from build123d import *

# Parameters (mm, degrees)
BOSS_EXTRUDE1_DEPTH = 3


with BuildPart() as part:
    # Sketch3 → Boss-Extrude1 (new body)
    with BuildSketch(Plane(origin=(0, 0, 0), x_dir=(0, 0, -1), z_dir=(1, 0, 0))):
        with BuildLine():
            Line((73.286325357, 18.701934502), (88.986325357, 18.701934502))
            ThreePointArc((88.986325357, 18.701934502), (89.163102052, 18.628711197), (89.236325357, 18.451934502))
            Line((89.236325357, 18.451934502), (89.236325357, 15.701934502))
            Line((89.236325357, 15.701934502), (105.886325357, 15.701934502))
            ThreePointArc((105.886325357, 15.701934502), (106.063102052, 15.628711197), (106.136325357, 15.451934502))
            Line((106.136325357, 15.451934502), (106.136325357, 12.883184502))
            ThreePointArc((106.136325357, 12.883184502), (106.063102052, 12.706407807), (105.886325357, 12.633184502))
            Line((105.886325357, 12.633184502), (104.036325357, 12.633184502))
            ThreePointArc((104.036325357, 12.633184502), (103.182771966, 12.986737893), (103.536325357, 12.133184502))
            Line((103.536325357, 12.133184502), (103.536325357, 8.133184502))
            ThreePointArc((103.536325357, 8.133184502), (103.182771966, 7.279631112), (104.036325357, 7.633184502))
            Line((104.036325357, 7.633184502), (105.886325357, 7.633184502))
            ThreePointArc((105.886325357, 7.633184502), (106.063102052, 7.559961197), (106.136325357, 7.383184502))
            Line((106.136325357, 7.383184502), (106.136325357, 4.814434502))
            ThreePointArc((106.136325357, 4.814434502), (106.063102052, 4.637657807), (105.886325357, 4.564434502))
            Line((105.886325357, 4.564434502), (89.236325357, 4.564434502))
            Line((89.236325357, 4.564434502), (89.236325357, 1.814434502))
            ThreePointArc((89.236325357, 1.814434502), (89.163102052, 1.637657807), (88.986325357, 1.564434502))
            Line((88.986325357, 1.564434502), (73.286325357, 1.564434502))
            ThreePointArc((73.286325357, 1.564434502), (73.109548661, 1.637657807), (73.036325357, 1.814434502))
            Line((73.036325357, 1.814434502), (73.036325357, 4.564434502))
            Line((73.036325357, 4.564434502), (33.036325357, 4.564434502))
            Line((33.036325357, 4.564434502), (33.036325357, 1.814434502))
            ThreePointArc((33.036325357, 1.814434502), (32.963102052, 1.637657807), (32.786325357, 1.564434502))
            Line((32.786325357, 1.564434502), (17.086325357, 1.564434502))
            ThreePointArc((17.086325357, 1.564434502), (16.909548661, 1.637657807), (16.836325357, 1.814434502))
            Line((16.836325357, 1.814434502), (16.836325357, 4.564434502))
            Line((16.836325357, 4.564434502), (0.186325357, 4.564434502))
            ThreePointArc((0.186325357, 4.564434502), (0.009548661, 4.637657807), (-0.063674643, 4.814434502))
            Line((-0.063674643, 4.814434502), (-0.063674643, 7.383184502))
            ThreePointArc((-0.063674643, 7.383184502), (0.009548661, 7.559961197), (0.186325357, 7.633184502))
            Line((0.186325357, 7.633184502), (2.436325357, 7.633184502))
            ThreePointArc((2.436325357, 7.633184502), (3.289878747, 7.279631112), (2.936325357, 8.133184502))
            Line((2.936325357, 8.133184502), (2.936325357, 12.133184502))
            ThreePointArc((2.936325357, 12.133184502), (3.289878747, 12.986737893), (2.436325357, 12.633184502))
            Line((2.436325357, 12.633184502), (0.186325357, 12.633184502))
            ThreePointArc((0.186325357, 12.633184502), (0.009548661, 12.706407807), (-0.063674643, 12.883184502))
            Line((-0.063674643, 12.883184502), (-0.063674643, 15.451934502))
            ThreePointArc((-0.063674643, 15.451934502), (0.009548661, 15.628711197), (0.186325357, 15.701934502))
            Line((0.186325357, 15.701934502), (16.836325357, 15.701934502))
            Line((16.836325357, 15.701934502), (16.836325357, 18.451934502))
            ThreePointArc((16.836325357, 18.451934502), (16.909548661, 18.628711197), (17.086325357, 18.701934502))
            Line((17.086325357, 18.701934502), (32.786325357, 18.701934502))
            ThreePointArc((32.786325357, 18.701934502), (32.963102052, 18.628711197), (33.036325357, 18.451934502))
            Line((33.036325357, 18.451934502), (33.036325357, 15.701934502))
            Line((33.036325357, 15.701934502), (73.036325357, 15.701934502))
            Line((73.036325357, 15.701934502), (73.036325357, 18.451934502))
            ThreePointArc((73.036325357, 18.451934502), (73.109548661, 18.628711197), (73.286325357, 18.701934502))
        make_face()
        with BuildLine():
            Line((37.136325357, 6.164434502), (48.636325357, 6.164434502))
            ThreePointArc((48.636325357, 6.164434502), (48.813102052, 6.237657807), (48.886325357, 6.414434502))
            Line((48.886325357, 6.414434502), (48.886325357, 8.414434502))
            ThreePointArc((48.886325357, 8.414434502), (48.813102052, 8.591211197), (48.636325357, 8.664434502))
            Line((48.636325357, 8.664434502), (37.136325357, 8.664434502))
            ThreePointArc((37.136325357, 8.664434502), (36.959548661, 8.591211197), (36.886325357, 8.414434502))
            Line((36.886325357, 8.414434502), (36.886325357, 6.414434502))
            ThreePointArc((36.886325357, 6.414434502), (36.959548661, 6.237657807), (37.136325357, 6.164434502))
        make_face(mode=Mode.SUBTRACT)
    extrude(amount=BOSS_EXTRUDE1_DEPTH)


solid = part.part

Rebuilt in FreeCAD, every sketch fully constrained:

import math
import FreeCAD as App
import Part
import Sketcher
Q = App.Units.Quantity

doc = App.newDocument("Part")
body = doc.addObject("PartDesign::Body", "Body")

# Sketch on YZ plane
sketch1 = doc.addObject("Sketcher::SketchObject", "Sketch")
body.addObject(sketch1)
sketch1.AttachmentSupport = (doc.YZ_Plane, [""])
sketch1.MapMode = "FlatFace"
sketch1.addGeometry([
    Part.LineSegment(App.Vector(18.7, -88.99, 0), App.Vector(18.7, -73.29, 0)),  # 0
    Part.ArcOfCircle(Part.Circle(App.Vector(18.45, -73.29, 0), App.Vector(0, 0, 1), 0.25), math.radians(0), math.radians(90)),  # 1
    Part.LineSegment(App.Vector(18.45, -73.04, 0), App.Vector(15.7, -73.04, 0)),  # 2
    Part.LineSegment(App.Vector(15.7, -73.04, 0), App.Vector(15.7, -33.04, 0)),  # 3
    Part.LineSegment(App.Vector(15.7, -33.04, 0), App.Vector(18.45, -33.04, 0)),  # 4
    Part.ArcOfCircle(Part.Circle(App.Vector(18.45, -32.79, 0), App.Vector(0, 0, 1), 0.25), math.radians(-90), math.radians(0)),  # 5
    Part.LineSegment(App.Vector(18.7, -32.79, 0), App.Vector(18.7, -17.09, 0)),  # 6
    Part.ArcOfCircle(Part.Circle(App.Vector(18.45, -17.09, 0), App.Vector(0, 0, 1), 0.25), math.radians(0), math.radians(90)),  # 7
    Part.LineSegment(App.Vector(18.45, -16.84, 0), App.Vector(15.7, -16.84, 0)),  # 8
    Part.LineSegment(App.Vector(15.7, -16.84, 0), App.Vector(15.7, -0.19, 0)),  # 9
    Part.ArcOfCircle(Part.Circle(App.Vector(15.45, -0.19, 0), App.Vector(0, 0, 1), 0.25), math.radians(0), math.radians(90)),  # 10
    Part.LineSegment(App.Vector(15.45, 0.06, 0), App.Vector(12.88, 0.06, 0)),  # 11
    Part.ArcOfCircle(Part.Circle(App.Vector(12.88, -0.19, 0), App.Vector(0, 0, 1), 0.25), math.radians(90), math.radians(180)),  # 12
    Part.LineSegment(App.Vector(12.63, -0.19, 0), App.Vector(12.63, -2.44, 0)),  # 13
    Part.ArcOfCircle(Part.Circle(App.Vector(12.63, -2.94, 0), App.Vector(0, 0, 1), 0.5), math.radians(180), math.radians(450)),  # 14
    Part.LineSegment(App.Vector(12.13, -2.94, 0), App.Vector(8.13, -2.94, 0)),  # 15
    Part.ArcOfCircle(Part.Circle(App.Vector(7.63, -2.94, 0), App.Vector(0, 0, 1), 0.5), math.radians(90), math.radians(360)),  # 16
    Part.LineSegment(App.Vector(7.63, -2.44, 0), App.Vector(7.63, -0.19, 0)),  # 17
    Part.ArcOfCircle(Part.Circle(App.Vector(7.38, -0.19, 0), App.Vector(0, 0, 1), 0.25), math.radians(0), math.radians(90)),  # 18
    Part.LineSegment(App.Vector(7.38, 0.06, 0), App.Vector(4.81, 0.06, 0)),  # 19
    Part.ArcOfCircle(Part.Circle(App.Vector(4.81, -0.19, 0), App.Vector(0, 0, 1), 0.25), math.radians(90), math.radians(180)),  # 20
    Part.LineSegment(App.Vector(4.56, -0.19, 0), App.Vector(4.56, -16.84, 0)),  # 21
    Part.LineSegment(App.Vector(4.56, -16.84, 0), App.Vector(1.81, -16.84, 0)),  # 22
    Part.ArcOfCircle(Part.Circle(App.Vector(1.81, -17.09, 0), App.Vector(0, 0, 1), 0.25), math.radians(90), math.radians(180)),  # 23
    Part.LineSegment(App.Vector(1.56, -17.09, 0), App.Vector(1.56, -32.79, 0)),  # 24
    Part.ArcOfCircle(Part.Circle(App.Vector(1.81, -32.79, 0), App.Vector(0, 0, 1), 0.25), math.radians(-180), math.radians(-90)),  # 25
    Part.LineSegment(App.Vector(1.81, -33.04, 0), App.Vector(4.56, -33.04, 0)),  # 26
    Part.LineSegment(App.Vector(4.56, -33.04, 0), App.Vector(4.56, -73.04, 0)),  # 27
    Part.LineSegment(App.Vector(4.56, -73.04, 0), App.Vector(1.81, -73.04, 0)),  # 28
    Part.ArcOfCircle(Part.Circle(App.Vector(1.81, -73.29, 0), App.Vector(0, 0, 1), 0.25), math.radians(90), math.radians(180)),  # 29
    Part.LineSegment(App.Vector(1.56, -73.29, 0), App.Vector(1.56, -88.99, 0)),  # 30
    Part.ArcOfCircle(Part.Circle(App.Vector(1.81, -88.99, 0), App.Vector(0, 0, 1), 0.25), math.radians(-180), math.radians(-90)),  # 31
    Part.LineSegment(App.Vector(1.81, -89.24, 0), App.Vector(4.56, -89.24, 0)),  # 32
    Part.LineSegment(App.Vector(4.56, -89.24, 0), App.Vector(4.56, -105.89, 0)),  # 33
    Part.ArcOfCircle(Part.Circle(App.Vector(4.81, -105.89, 0), App.Vector(0, 0, 1), 0.25), math.radians(-180), math.radians(-90)),  # 34
    Part.LineSegment(App.Vector(4.81, -106.14, 0), App.Vector(7.38, -106.14, 0)),  # 35
    Part.ArcOfCircle(Part.Circle(App.Vector(7.38, -105.89, 0), App.Vector(0, 0, 1), 0.25), math.radians(-90), math.radians(0)),  # 36
    Part.LineSegment(App.Vector(7.63, -105.89, 0), App.Vector(7.63, -104.04, 0)),  # 37
    Part.ArcOfCircle(Part.Circle(App.Vector(7.63, -103.54, 0), App.Vector(0, 0, 1), 0.5), math.radians(0), math.radians(270)),  # 38
    Part.LineSegment(App.Vector(8.13, -103.54, 0), App.Vector(12.13, -103.54, 0)),  # 39
    Part.ArcOfCircle(Part.Circle(App.Vector(12.63, -103.54, 0), App.Vector(0, 0, 1), 0.5), math.radians(-90), math.radians(180)),  # 40
    Part.LineSegment(App.Vector(12.63, -104.04, 0), App.Vector(12.63, -105.89, 0)),  # 41
    Part.ArcOfCircle(Part.Circle(App.Vector(12.88, -105.89, 0), App.Vector(0, 0, 1), 0.25), math.radians(-180), math.radians(-90)),  # 42
    Part.LineSegment(App.Vector(12.88, -106.14, 0), App.Vector(15.45, -106.14, 0)),  # 43
    Part.ArcOfCircle(Part.Circle(App.Vector(15.45, -105.89, 0), App.Vector(0, 0, 1), 0.25), math.radians(-90), math.radians(0)),  # 44
    Part.LineSegment(App.Vector(15.7, -105.89, 0), App.Vector(15.7, -89.24, 0)),  # 45
    Part.LineSegment(App.Vector(15.7, -89.24, 0), App.Vector(18.45, -89.24, 0)),  # 46
    Part.ArcOfCircle(Part.Circle(App.Vector(18.45, -88.99, 0), App.Vector(0, 0, 1), 0.25), math.radians(-90), math.radians(0)),  # 47
    Part.ArcOfCircle(Part.Circle(App.Vector(6.41, -37.14, 0), App.Vector(0, 0, 1), 0.25), math.radians(90), math.radians(180)),  # 48
    Part.LineSegment(App.Vector(6.41, -36.89, 0), App.Vector(8.41, -36.89, 0)),  # 49
    Part.ArcOfCircle(Part.Circle(App.Vector(8.41, -37.14, 0), App.Vector(0, 0, 1), 0.25), math.radians(0), math.radians(90)),  # 50
    Part.LineSegment(App.Vector(8.66, -37.14, 0), App.Vector(8.66, -48.64, 0)),  # 51
    Part.ArcOfCircle(Part.Circle(App.Vector(8.41, -48.64, 0), App.Vector(0, 0, 1), 0.25), math.radians(-90), math.radians(0)),  # 52
    Part.LineSegment(App.Vector(8.41, -48.89, 0), App.Vector(6.41, -48.89, 0)),  # 53
    Part.ArcOfCircle(Part.Circle(App.Vector(6.41, -48.64, 0), App.Vector(0, 0, 1), 0.25), math.radians(-180), math.radians(-90)),  # 54
    Part.LineSegment(App.Vector(6.16, -48.64, 0), App.Vector(6.16, -37.14, 0)),  # 55
], False)
sketch1.addConstraint([
    Sketcher.Constraint("Tangent", 0, 2, 1, 1),
    Sketcher.Constraint("Tangent", 1, 2, 2, 1),
    Sketcher.Constraint("Coincident", 2, 2, 3, 1),
    Sketcher.Constraint("Coincident", 3, 2, 4, 1),
    Sketcher.Constraint("Tangent", 4, 2, 5, 1),
    Sketcher.Constraint("Tangent", 5, 2, 6, 1),
    Sketcher.Constraint("Tangent", 6, 2, 7, 1),
    Sketcher.Constraint("Tangent", 7, 2, 8, 1),
    Sketcher.Constraint("Coincident", 8, 2, 9, 1),
    Sketcher.Constraint("Tangent", 9, 2, 10, 1),
    Sketcher.Constraint("Tangent", 10, 2, 11, 1),
    Sketcher.Constraint("Tangent", 11, 2, 12, 1),
    Sketcher.Constraint("Tangent", 12, 2, 13, 1),
    Sketcher.Constraint("Coincident", 13, 2, 14, 2),
    Sketcher.Constraint("Coincident", 14, 1, 15, 1),
    Sketcher.Constraint("Coincident", 15, 2, 16, 2),
    Sketcher.Constraint("Coincident", 16, 1, 17, 1),
    Sketcher.Constraint("Tangent", 17, 2, 18, 1),
    Sketcher.Constraint("Tangent", 18, 2, 19, 1),
    Sketcher.Constraint("Tangent", 19, 2, 20, 1),
    Sketcher.Constraint("Tangent", 20, 2, 21, 1),
    Sketcher.Constraint("Coincident", 21, 2, 22, 1),
    Sketcher.Constraint("Tangent", 22, 2, 23, 1),
    Sketcher.Constraint("Tangent", 23, 2, 24, 1),
    Sketcher.Constraint("Tangent", 24, 2, 25, 1),
    Sketcher.Constraint("Tangent", 25, 2, 26, 1),
    Sketcher.Constraint("Coincident", 26, 2, 27, 1),
    Sketcher.Constraint("Coincident", 27, 2, 28, 1),
    Sketcher.Constraint("Tangent", 28, 2, 29, 1),
    Sketcher.Constraint("Tangent", 29, 2, 30, 1),
    Sketcher.Constraint("Tangent", 30, 2, 31, 1),
    Sketcher.Constraint("Tangent", 31, 2, 32, 1),
    Sketcher.Constraint("Coincident", 32, 2, 33, 1),
    Sketcher.Constraint("Tangent", 33, 2, 34, 1),
    Sketcher.Constraint("Tangent", 34, 2, 35, 1),
    Sketcher.Constraint("Tangent", 35, 2, 36, 1),
    Sketcher.Constraint("Tangent", 36, 2, 37, 1),
    Sketcher.Constraint("Coincident", 37, 2, 38, 2),
    Sketcher.Constraint("Coincident", 38, 1, 39, 1),
    Sketcher.Constraint("Coincident", 39, 2, 40, 2),
    Sketcher.Constraint("Coincident", 40, 1, 41, 1),
    Sketcher.Constraint("Tangent", 41, 2, 42, 1),
    Sketcher.Constraint("Tangent", 42, 2, 43, 1),
    Sketcher.Constraint("Tangent", 43, 2, 44, 1),
    Sketcher.Constraint("Tangent", 44, 2, 45, 1),
    Sketcher.Constraint("Coincident", 45, 2, 46, 1),
    Sketcher.Constraint("Tangent", 46, 2, 47, 1),
    Sketcher.Constraint("Tangent", 47, 2, 0, 1),
    Sketcher.Constraint("Tangent", 48, 1, 49, 1),
    Sketcher.Constraint("Tangent", 49, 2, 50, 2),
    Sketcher.Constraint("Tangent", 50, 1, 51, 1),
    Sketcher.Constraint("Tangent", 51, 2, 52, 2),
    Sketcher.Constraint("Tangent", 52, 1, 53, 1),
    Sketcher.Constraint("Tangent", 53, 2, 54, 2),
    Sketcher.Constraint("Tangent", 54, 1, 55, 1),
    Sketcher.Constraint("Tangent", 55, 2, 48, 2),
    Sketcher.Constraint("Vertical", 0),
    Sketcher.Constraint("Horizontal", 2),
    Sketcher.Constraint("Vertical", 3),
    Sketcher.Constraint("Horizontal", 4),
    Sketcher.Constraint("Vertical", 6),
    Sketcher.Constraint("Horizontal", 8),
    Sketcher.Constraint("Vertical", 9),
    Sketcher.Constraint("Horizontal", 11),
    Sketcher.Constraint("Vertical", 13),
    Sketcher.Constraint("Horizontal", 15),
    Sketcher.Constraint("Vertical", 17),
    Sketcher.Constraint("Horizontal", 19),
    Sketcher.Constraint("Vertical", 21),
    Sketcher.Constraint("Horizontal", 22),
    Sketcher.Constraint("Vertical", 24),
    Sketcher.Constraint("Horizontal", 26),
    Sketcher.Constraint("Vertical", 27),
    Sketcher.Constraint("Horizontal", 28),
    Sketcher.Constraint("Vertical", 30),
    Sketcher.Constraint("Horizontal", 32),
    Sketcher.Constraint("Vertical", 33),
    Sketcher.Constraint("Horizontal", 35),
    Sketcher.Constraint("Vertical", 37),
    Sketcher.Constraint("Horizontal", 39),
    Sketcher.Constraint("Vertical", 41),
    Sketcher.Constraint("Horizontal", 43),
    Sketcher.Constraint("Vertical", 45),
    Sketcher.Constraint("Horizontal", 46),
    Sketcher.Constraint("Horizontal", 49),
    Sketcher.Constraint("Vertical", 51),
    Sketcher.Constraint("Horizontal", 53),
    Sketcher.Constraint("Vertical", 55),
    Sketcher.Constraint("Equal", 1, 5),
    Sketcher.Constraint("Equal", 5, 7),
    Sketcher.Constraint("Equal", 7, 10),
    Sketcher.Constraint("Equal", 10, 12),
    Sketcher.Constraint("Equal", 14, 16),
    Sketcher.Constraint("Equal", 12, 18),
    Sketcher.Constraint("Equal", 18, 20),
    Sketcher.Constraint("Equal", 20, 23),
    Sketcher.Constraint("Equal", 23, 25),
    Sketcher.Constraint("Equal", 25, 29),
    Sketcher.Constraint("Equal", 29, 31),
    Sketcher.Constraint("Equal", 31, 34),
    Sketcher.Constraint("Equal", 34, 36),
    Sketcher.Constraint("Equal", 16, 38),
    Sketcher.Constraint("Equal", 38, 40),
    Sketcher.Constraint("Equal", 36, 42),
    Sketcher.Constraint("Equal", 42, 44),
    Sketcher.Constraint("Equal", 44, 47),
    Sketcher.Constraint("Equal", 47, 48),
    Sketcher.Constraint("Equal", 48, 50),
    Sketcher.Constraint("Equal", 50, 52),
    Sketcher.Constraint("Equal", 52, 54),
    Sketcher.Constraint("Horizontal", 14, 3, 16, 3),
    Sketcher.Constraint("Horizontal", 12, 3, 18, 3),
    Sketcher.Constraint("Horizontal", 7, 3, 23, 3),
    Sketcher.Constraint("Horizontal", 5, 3, 25, 3),
    Sketcher.Constraint("Horizontal", 1, 3, 29, 3),
    Sketcher.Constraint("Horizontal", 38, 3, 40, 3),
    Sketcher.Constraint("Horizontal", 36, 3, 42, 3),
    Sketcher.Constraint("Horizontal", 31, 3, 47, 3),
    Sketcher.Constraint("Horizontal", 16, 3, 14, 1),
    Sketcher.Constraint("Horizontal", 40, 3, 38, 1),
    Sketcher.Constraint("Vertical", 1, 3, 5, 3),
    Sketcher.Constraint("Vertical", 25, 3, 29, 3),
    Sketcher.Constraint("Vertical", 20, 3, 34, 3),
    Sketcher.Constraint("Vertical", 18, 3, 36, 3),
    Sketcher.Constraint("Vertical", 16, 3, 38, 3),
    Sketcher.Constraint("Vertical", 14, 3, 40, 3),
    Sketcher.Constraint("Vertical", 12, 3, 42, 3),
    Sketcher.Constraint("Vertical", 10, 3, 44, 3),
    Sketcher.Constraint("Vertical", 3, 2, 8, 2),
    Sketcher.Constraint("Vertical", 40, 3, 12, 2),
    Sketcher.Constraint("Vertical", 38, 3, 16, 1),
    Sketcher.Constraint("Vertical", 21, 2, 26, 2),
    Sketcher.Constraint("Equal", 11, 19),
    Sketcher.Constraint("Equal", 8, 22),
    Sketcher.Constraint("Equal", 0, 6),
    Sketcher.Constraint("Equal", 21, 33),
    Sketcher.Constraint("Radius", 14, Q("0.5 mm")),
    Sketcher.Constraint("DistanceX", 15, 2, 15, 1, Q("4 mm")),
    Sketcher.Constraint("DistanceX", 49, 1, 49, 2, Q("2 mm")),
    Sketcher.Constraint("DistanceY", 3, 1, 3, 2, Q("40 mm")),
    Sketcher.Constraint("Radius", 1, Q("0.25 mm")),
    Sketcher.Constraint("DistanceY", 0, 1, 0, 2, Q("15.7 mm")),
    Sketcher.Constraint("DistanceY", 51, 2, 51, 1, Q("11.5 mm")),
    Sketcher.Constraint("DistanceX", 2, 2, 2, 1, Q("2.75 mm")),
    Sketcher.Constraint("DistanceY", 9, 1, 9, 2, Q("16.65 mm")),
    Sketcher.Constraint("DistanceY", 13, 2, 13, 1, Q("2.25 mm")),
    Sketcher.Constraint("DistanceY", 37, 1, 37, 2, Q("1.85 mm")),
    Sketcher.Constraint("DistanceX", 11, 2, 11, 1, Q("2.56875 mm")),
    Sketcher.Constraint("DistanceX", -1, 1, 1, 3, Q("18.451935 mm")),
    Sketcher.Constraint("DistanceY", 1, 3, -1, 1, Q("73.286325 mm")),
    Sketcher.Constraint("DistanceX", -1, 1, 48, 3, Q("6.414435 mm")),
    Sketcher.Constraint("DistanceY", 48, 3, -1, 1, Q("37.136325 mm")),
])
pad1 = doc.addObject("PartDesign::Pad", "Pad")
body.addObject(pad1)
pad1.Profile = sketch1
pad1.Length = 3

doc.recompute()
